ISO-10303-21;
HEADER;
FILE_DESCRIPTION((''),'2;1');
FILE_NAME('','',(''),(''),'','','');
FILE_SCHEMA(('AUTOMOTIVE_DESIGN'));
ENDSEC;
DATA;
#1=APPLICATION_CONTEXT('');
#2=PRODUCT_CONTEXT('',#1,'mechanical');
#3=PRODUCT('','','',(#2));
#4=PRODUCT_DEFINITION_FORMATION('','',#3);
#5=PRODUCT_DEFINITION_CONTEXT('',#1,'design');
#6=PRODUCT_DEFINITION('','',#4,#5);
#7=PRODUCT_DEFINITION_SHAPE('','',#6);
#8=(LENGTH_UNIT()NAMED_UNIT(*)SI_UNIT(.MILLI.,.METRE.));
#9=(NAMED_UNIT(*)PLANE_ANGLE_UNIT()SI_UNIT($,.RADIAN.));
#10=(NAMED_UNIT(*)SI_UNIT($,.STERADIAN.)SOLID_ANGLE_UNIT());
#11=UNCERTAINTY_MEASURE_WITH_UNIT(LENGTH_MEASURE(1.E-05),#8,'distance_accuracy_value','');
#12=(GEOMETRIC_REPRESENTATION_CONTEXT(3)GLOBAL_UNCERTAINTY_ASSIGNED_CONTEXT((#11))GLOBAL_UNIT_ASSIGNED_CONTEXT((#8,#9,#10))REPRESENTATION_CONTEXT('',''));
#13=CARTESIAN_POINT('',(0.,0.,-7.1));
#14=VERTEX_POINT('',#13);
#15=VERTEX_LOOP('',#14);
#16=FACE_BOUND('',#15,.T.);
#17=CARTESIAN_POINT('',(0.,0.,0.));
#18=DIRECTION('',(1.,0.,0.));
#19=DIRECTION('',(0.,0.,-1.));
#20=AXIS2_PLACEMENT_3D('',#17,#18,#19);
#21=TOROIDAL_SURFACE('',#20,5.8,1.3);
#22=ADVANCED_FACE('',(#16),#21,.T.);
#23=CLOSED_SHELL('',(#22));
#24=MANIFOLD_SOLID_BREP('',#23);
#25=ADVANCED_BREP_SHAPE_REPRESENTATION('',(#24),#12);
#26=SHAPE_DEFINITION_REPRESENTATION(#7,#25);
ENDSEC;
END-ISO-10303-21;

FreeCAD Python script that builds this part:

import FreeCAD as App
import Part
import Sketcher

doc = App.newDocument("Part")
body = doc.addObject("PartDesign::Body", "Body")

sketch1 = body.newObject("Sketcher::SketchObject", "Sketch")
sketch1.AttachmentSupport = (doc.getObject("XY_Plane"), [""])
sketch1.MapMode = "FlatFace"
sketch1.addGeometry(Part.Circle(App.Vector(0, 5.8, 0), App.Vector(0, 0, 1), 1.3), False)
sketch1.addConstraint([
    Sketcher.Constraint("PointOnObject", 0, 3, -2),
    Sketcher.Constraint("Diameter", 0, 2.6),
    Sketcher.Constraint("DistanceY", -1, 1, 0, 3, 5.8),
])
revolution = body.newObject("PartDesign::Revolution", "Revolution")
revolution.Profile = sketch1
revolution.ReferenceAxis = (sketch1, ["H_Axis"])
revolution.Angle = 360

doc.recompute()
